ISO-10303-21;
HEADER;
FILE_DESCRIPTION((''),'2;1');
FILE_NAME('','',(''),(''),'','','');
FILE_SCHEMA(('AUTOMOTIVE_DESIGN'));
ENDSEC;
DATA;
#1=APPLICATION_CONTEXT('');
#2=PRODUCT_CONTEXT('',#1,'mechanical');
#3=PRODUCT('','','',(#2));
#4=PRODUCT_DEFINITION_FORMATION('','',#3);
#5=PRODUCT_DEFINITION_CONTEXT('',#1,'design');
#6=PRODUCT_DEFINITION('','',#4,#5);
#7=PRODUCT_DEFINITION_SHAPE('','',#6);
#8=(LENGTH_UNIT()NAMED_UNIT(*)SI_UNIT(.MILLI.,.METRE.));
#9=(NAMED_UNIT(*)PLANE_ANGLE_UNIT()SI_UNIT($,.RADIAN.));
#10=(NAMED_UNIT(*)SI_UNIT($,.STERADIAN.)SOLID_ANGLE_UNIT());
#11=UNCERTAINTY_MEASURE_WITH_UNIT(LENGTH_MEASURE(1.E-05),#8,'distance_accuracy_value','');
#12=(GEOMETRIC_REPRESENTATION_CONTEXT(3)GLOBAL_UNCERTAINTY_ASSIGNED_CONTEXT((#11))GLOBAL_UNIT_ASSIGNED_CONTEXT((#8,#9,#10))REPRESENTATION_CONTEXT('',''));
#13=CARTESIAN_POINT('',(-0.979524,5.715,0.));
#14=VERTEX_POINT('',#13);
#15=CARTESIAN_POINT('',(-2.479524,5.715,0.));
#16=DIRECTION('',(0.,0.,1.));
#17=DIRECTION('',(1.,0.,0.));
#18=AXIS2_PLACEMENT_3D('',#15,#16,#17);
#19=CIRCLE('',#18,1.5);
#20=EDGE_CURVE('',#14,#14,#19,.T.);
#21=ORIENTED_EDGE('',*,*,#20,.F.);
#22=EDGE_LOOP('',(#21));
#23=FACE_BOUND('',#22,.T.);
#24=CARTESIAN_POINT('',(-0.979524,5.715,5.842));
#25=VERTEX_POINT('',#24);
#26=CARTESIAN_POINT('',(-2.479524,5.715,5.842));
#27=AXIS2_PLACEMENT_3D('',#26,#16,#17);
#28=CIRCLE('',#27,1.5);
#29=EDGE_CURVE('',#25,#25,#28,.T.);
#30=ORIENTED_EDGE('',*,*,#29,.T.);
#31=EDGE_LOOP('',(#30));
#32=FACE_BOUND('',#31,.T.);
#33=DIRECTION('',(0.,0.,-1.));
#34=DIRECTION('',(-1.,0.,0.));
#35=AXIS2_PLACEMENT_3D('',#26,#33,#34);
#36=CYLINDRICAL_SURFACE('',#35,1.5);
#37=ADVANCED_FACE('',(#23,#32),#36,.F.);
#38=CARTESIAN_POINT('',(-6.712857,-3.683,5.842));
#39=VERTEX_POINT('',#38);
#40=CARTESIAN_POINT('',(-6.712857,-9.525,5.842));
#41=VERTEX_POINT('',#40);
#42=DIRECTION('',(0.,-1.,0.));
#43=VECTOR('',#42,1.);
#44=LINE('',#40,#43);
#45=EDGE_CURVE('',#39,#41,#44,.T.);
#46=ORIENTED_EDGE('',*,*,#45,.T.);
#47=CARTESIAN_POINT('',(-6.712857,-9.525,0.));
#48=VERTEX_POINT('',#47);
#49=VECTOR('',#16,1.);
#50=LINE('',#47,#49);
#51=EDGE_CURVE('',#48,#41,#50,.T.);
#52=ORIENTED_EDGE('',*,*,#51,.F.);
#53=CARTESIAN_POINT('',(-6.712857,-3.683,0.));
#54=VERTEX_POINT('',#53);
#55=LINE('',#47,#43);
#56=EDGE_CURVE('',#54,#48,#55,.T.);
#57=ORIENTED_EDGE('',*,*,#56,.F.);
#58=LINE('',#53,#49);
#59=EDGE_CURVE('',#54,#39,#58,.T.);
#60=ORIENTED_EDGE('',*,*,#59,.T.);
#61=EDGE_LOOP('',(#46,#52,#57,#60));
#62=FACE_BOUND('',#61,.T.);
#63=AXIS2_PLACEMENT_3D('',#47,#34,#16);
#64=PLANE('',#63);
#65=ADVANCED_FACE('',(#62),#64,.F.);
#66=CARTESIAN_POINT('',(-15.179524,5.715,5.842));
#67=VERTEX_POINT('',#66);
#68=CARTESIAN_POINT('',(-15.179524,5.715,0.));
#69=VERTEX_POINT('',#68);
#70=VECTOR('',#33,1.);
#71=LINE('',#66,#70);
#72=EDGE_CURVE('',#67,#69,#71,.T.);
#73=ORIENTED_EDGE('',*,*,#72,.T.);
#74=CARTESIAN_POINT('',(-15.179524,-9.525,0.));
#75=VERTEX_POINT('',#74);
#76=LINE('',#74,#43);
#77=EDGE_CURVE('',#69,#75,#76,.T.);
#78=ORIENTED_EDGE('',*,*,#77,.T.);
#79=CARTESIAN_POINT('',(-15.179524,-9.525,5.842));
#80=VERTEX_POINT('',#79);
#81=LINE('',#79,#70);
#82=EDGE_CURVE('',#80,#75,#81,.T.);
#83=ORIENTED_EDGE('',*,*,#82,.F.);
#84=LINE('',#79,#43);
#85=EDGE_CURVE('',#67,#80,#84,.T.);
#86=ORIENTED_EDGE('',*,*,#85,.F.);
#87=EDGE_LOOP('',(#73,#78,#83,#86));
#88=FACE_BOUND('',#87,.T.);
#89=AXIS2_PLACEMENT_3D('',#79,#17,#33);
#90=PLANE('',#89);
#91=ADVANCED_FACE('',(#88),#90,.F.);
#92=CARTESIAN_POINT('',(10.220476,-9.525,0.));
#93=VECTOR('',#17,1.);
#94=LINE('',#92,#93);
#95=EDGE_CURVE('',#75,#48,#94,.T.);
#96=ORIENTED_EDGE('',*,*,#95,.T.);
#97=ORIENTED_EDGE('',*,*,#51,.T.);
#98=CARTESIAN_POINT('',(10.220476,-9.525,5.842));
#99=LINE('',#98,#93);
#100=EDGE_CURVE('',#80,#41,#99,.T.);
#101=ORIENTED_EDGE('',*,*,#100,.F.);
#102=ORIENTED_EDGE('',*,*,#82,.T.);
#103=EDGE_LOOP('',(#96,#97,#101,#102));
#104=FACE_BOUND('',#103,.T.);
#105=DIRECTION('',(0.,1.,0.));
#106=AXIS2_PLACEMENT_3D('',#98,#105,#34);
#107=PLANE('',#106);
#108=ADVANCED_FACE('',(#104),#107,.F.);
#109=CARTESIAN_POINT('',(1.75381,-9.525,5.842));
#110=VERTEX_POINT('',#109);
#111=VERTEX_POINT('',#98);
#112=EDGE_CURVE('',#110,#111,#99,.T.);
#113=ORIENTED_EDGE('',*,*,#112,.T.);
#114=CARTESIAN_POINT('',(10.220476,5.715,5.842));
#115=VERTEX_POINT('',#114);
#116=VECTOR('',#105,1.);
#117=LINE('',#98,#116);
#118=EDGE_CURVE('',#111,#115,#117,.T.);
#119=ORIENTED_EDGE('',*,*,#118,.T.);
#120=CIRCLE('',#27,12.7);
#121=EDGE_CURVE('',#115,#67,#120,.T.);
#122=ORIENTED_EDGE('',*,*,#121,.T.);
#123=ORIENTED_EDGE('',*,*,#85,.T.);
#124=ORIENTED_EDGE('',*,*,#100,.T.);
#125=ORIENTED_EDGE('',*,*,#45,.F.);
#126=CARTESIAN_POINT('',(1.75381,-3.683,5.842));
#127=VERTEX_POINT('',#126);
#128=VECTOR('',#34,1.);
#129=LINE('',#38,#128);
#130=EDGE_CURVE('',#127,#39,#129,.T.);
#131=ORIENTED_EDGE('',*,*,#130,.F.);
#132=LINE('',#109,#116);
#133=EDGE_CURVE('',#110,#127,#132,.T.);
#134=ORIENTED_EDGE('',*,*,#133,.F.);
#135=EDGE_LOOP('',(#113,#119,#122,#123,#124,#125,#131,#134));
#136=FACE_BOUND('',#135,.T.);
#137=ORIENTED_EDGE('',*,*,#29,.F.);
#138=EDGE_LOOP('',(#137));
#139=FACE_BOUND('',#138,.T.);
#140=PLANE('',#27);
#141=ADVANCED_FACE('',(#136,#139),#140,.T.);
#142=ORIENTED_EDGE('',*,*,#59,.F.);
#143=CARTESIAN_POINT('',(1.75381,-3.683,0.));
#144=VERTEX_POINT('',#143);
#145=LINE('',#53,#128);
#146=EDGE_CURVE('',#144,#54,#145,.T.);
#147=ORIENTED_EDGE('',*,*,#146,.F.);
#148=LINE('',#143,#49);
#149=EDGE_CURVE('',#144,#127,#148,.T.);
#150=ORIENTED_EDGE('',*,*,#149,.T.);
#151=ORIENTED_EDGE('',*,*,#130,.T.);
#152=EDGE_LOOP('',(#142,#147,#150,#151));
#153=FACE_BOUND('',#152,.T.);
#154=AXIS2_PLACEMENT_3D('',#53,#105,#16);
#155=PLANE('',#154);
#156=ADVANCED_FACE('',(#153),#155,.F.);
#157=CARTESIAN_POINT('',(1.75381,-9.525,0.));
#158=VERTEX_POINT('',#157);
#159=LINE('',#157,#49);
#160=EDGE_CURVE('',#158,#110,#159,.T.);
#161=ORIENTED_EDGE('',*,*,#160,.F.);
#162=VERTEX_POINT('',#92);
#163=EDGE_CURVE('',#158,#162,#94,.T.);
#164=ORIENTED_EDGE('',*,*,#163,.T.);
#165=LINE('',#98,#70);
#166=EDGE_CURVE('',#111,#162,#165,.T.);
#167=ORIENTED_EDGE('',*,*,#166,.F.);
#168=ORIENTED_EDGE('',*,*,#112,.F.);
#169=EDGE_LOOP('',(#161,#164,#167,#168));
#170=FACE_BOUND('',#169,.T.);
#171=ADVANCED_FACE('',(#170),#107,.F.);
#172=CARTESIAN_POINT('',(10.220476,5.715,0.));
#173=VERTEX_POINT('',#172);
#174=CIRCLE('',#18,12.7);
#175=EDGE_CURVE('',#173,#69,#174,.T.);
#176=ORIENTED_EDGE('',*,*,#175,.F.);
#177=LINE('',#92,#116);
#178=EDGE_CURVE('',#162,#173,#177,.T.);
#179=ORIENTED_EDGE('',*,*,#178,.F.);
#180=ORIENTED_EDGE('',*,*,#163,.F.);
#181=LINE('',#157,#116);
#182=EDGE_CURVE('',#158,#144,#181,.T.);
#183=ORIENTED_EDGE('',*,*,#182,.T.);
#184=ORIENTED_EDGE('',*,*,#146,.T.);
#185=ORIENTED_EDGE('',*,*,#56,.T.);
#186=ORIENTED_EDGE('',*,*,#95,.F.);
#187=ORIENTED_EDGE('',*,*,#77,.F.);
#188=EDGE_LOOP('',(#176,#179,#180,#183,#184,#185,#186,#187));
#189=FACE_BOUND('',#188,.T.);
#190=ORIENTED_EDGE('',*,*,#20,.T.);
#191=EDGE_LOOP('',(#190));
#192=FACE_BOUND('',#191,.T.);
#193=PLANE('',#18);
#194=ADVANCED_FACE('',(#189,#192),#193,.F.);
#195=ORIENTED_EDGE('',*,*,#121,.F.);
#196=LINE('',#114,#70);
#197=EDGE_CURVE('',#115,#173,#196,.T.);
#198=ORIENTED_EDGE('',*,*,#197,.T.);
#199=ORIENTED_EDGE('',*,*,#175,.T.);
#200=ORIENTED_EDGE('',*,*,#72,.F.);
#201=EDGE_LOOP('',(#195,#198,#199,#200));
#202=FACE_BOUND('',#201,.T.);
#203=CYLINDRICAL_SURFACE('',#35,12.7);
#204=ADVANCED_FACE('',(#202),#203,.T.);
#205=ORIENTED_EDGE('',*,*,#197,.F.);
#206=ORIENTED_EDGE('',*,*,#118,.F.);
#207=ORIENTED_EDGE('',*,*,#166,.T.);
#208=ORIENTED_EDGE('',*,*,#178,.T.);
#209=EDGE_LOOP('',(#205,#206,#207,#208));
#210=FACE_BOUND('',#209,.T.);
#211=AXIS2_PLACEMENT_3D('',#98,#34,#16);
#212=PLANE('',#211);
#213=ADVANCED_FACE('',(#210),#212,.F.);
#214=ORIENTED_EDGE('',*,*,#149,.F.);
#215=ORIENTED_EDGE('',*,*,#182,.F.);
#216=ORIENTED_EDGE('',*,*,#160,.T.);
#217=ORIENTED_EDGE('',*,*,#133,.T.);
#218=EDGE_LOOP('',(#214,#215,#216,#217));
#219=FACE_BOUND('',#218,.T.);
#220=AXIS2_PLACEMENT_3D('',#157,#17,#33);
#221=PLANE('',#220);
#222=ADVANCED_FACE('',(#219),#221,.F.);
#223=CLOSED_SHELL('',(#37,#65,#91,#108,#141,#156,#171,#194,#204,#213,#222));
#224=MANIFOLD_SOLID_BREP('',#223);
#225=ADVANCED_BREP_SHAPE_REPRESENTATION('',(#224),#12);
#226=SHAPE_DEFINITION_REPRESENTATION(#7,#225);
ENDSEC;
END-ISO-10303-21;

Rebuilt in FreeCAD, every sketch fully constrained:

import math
import FreeCAD as App
import Part
import Sketcher

V = App.Vector
Q = App.Units.Quantity


def add_polygon(sketch, points):
    """Adds a closed chain of lines whose ends are joined by coincident constraints."""
    first, n = sketch.GeometryCount, len(points)
    for a, b in zip(points, points[1:] + points[:1]):
        sketch.addGeometry(Part.LineSegment(App.Vector(*a, 0), App.Vector(*b, 0)), False)
    for i in range(n):
        sketch.addConstraint(Sketcher.Constraint("Coincident", first + i, 2, first + (i + 1) % n, 1))

doc = App.newDocument("Part")
body = doc.addObject("PartDesign::Body", "Body")

sketch1 = body.newObject("Sketcher::SketchObject", "Sketch")
sketch1.AttachmentSupport = (doc.getObject("XY_Plane"), [""])
sketch1.MapMode = "FlatFace"
sketch1.addGeometry(Part.LineSegment(V(-15.2, -9.5, 0), V(10.2, -9.5, 0)), False)
sketch1.addGeometry(Part.LineSegment(V(10.2, -9.5, 0), V(10.2, 5.7, 0)), False)
sketch1.addGeometry(Part.ArcOfCircle(Part.Circle(V(-2.5, 5.7, 0), V(0, 0, 1), 12.7), math.radians(0), math.radians(180)), False)
sketch1.addGeometry(Part.LineSegment(V(-15.2, 5.7, 0), V(-15.2, -9.5, 0)), False)
sketch1.addGeometry(Part.Circle(V(-2.5, 5.7, 0), V(0, 0, 1), 1.5), False)
sketch1.addConstraint(Sketcher.Constraint("Coincident", 0, 2, 1, 1))
sketch1.addConstraint(Sketcher.Constraint("Tangent", 1, 2, 2, 1))
sketch1.addConstraint(Sketcher.Constraint("Tangent", 2, 2, 3, 1))
sketch1.addConstraint(Sketcher.Constraint("Coincident", 3, 2, 0, 1))
sketch1.addConstraint(Sketcher.Constraint("Horizontal", 0))
sketch1.addConstraint(Sketcher.Constraint("Vertical", 1))
sketch1.addConstraint(Sketcher.Constraint("Vertical", 3))
sketch1.addConstraint(Sketcher.Constraint("Coincident", 4, 3, 2, 3))
sketch1.addConstraint(Sketcher.Constraint("Radius", 2, Q("0.5 in")))
sketch1.addConstraint(Sketcher.Constraint("DistanceY", 1, 1, 1, 2, Q("0.6 in")))
sketch1.addConstraint(Sketcher.Constraint("Diameter", 4, 3.0))
sketch1.addConstraint(Sketcher.Constraint("DistanceY", -1, 1, 2, 3, Q("0.225 in")))
sketch1.addConstraint(Sketcher.Constraint("DistanceX", 2, 3, -1, 1, 2.479524))
pad1 = body.newObject("PartDesign::Pad", "Pad")
pad1.Profile = sketch1
pad1.Length = Q("0.23 in")

sketch2 = body.newObject("Sketcher::SketchObject", "Sketch001")
sketch2.AttachmentSupport = (doc.getObject("XY_Plane"), [""])
sketch2.MapMode = "FlatFace"
sketch2.AttachmentOffset = App.Placement(V(0, 0, 0.23 * 25.4), App.Rotation())
add_polygon(sketch2, [(-7, -4), (-7, -10), (2, -10), (2, -4)])
sketch2.addConstraint(Sketcher.Constraint("Vertical", 0))
sketch2.addConstraint(Sketcher.Constraint("Horizontal", 1))
sketch2.addConstraint(Sketcher.Constraint("Vertical", 2))
sketch2.addConstraint(Sketcher.Constraint("Horizontal", 3))
sketch2.addConstraint(Sketcher.Constraint("DistanceY", 0, 2, 0, 1, Q("0.23 in")))
sketch2.addConstraint(Sketcher.Constraint("DistanceY", 0, 2, -1, 1, Q("0.375 in")))
sketch2.addConstraint(Sketcher.Constraint("DistanceX", 1, 1, 1, 2, 8.466667))
sketch2.addConstraint(Sketcher.Constraint("DistanceX", -1, 1, 1, 2, 1.75381))
pocket1 = body.newObject("PartDesign::Pocket", "Pocket")
pocket1.Profile = sketch2
pocket1.Length = Q("0.23 in")

doc.recompute()
